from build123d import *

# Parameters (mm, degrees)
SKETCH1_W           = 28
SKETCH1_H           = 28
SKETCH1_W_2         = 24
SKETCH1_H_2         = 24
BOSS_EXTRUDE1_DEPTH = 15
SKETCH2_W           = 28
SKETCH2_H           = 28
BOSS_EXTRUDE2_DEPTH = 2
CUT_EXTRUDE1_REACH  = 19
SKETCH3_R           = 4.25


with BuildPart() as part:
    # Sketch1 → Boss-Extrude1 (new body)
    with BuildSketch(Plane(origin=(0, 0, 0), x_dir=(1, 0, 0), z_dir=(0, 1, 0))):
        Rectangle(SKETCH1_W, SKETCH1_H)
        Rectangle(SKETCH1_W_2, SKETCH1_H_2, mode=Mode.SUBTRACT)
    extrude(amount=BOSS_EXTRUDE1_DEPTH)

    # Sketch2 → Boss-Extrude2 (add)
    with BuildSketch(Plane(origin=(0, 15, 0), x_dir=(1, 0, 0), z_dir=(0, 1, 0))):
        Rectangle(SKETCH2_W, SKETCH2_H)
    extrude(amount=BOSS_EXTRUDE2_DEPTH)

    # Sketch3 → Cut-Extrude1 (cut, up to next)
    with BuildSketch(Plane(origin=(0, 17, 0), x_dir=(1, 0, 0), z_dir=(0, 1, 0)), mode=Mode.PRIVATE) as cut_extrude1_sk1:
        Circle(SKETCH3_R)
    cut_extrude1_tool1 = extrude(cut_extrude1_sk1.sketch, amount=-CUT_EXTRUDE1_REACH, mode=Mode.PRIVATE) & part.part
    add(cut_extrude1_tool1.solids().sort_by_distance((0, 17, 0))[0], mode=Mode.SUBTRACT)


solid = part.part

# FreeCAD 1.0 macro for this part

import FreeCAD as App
import Part
import Sketcher
from FreeCAD import Vector


def add_polygon(sketch, points):
    """Adds a closed chain of lines whose ends are joined by coincident constraints."""
    first, n = sketch.GeometryCount, len(points)
    for a, b in zip(points, points[1:] + points[:1]):
        sketch.addGeometry(Part.LineSegment(App.Vector(*a, 0), App.Vector(*b, 0)), False)
    for i in range(n):
        sketch.addConstraint(Sketcher.Constraint("Coincident", first + i, 2, first + (i + 1) % n, 1))

doc = App.newDocument("Part")
body = doc.addObject("PartDesign::Body", "Body")

# Sketch on XZ plane
sketch1 = doc.addObject("Sketcher::SketchObject", "Sketch")
body.addObject(sketch1)
sketch1.AttachmentSupport = (doc.XZ_Plane, [""])
sketch1.MapMode = "FlatFace"
add_polygon(sketch1, [(-14, -14), (-14, 14), (14, 14), (14, -14)])  # lines 0-3
add_polygon(sketch1, [(12, 12), (-12, 12), (-12, -12), (12, -12)])  # lines 4-7
sketch1.addConstraint([
    Sketcher.Constraint("Vertical", 0),
    Sketcher.Constraint("Horizontal", 1),
    Sketcher.Constraint("Vertical", 2),
    Sketcher.Constraint("Horizontal", 3),
    Sketcher.Constraint("Horizontal", 4),
    Sketcher.Constraint("Vertical", 5),
    Sketcher.Constraint("Horizontal", 6),
    Sketcher.Constraint("Vertical", 7),
    Sketcher.Constraint("Symmetric", 0, 2, 2, 2, -1, 1),
    Sketcher.Constraint("Symmetric", 4, 2, 6, 2, -1, 1),
    Sketcher.Constraint("Equal", 3, 0),
    Sketcher.Constraint("Equal", 6, 5),
    Sketcher.Constraint("DistanceX", 1, 1, 1, 2, 28.0),
    Sketcher.Constraint("DistanceX", 4, 2, 4, 1, 24.0),
])
pad1 = doc.addObject("PartDesign::Pad", "Pad")
body.addObject(pad1)
pad1.Profile = sketch1
pad1.Length = 15
pad1.Reversed = True

# Sketch on XZ plane
sketch2 = doc.addObject("Sketcher::SketchObject", "Sketch001")
body.addObject(sketch2)
sketch2.AttachmentSupport = (doc.XZ_Plane, [""])
sketch2.MapMode = "FlatFace"
sketch2.AttachmentOffset = App.Placement(Vector(0, 0, -15), App.Rotation())
add_polygon(sketch2, [(-14, -14), (-14, 14), (14, 14), (14, -14)])  # lines 0-3
sketch2.addConstraint([
    Sketcher.Constraint("Vertical", 0),
    Sketcher.Constraint("Horizontal", 1),
    Sketcher.Constraint("Vertical", 2),
    Sketcher.Constraint("Horizontal", 3),
    Sketcher.Constraint("Symmetric", 0, 2, 2, 2, -1, 1),
    Sketcher.Constraint("Equal", 3, 0),
    Sketcher.Constraint("DistanceX", 1, 1, 1, 2, 28.0),
])
pad2 = doc.addObject("PartDesign::Pad", "Pad001")
body.addObject(pad2)
pad2.Profile = sketch2
pad2.Length = 2
pad2.Reversed = True

# Sketch on XZ plane
sketch3 = doc.addObject("Sketcher::SketchObject", "Sketch002")
body.addObject(sketch3)
sketch3.AttachmentSupport = (doc.XZ_Plane, [""])
sketch3.MapMode = "FlatFace"
sketch3.AttachmentOffset = App.Placement(Vector(0, 0, -17), App.Rotation())
sketch3.addGeometry(Part.Circle(Vector(0, 0, 0), Vector(0, 0, 1), 4.25), False)
sketch3.addConstraint([
    Sketcher.Constraint("Coincident", 0, 3, -1, 1),
    Sketcher.Constraint("Diameter", 0, 8.5),
])
pocket1 = doc.addObject("PartDesign::Pocket", "Pocket")
body.addObject(pocket1)
pocket1.Profile = sketch3
pocket1.Type = "UpToFirst"
pocket1.Reversed = True

doc.recompute()
